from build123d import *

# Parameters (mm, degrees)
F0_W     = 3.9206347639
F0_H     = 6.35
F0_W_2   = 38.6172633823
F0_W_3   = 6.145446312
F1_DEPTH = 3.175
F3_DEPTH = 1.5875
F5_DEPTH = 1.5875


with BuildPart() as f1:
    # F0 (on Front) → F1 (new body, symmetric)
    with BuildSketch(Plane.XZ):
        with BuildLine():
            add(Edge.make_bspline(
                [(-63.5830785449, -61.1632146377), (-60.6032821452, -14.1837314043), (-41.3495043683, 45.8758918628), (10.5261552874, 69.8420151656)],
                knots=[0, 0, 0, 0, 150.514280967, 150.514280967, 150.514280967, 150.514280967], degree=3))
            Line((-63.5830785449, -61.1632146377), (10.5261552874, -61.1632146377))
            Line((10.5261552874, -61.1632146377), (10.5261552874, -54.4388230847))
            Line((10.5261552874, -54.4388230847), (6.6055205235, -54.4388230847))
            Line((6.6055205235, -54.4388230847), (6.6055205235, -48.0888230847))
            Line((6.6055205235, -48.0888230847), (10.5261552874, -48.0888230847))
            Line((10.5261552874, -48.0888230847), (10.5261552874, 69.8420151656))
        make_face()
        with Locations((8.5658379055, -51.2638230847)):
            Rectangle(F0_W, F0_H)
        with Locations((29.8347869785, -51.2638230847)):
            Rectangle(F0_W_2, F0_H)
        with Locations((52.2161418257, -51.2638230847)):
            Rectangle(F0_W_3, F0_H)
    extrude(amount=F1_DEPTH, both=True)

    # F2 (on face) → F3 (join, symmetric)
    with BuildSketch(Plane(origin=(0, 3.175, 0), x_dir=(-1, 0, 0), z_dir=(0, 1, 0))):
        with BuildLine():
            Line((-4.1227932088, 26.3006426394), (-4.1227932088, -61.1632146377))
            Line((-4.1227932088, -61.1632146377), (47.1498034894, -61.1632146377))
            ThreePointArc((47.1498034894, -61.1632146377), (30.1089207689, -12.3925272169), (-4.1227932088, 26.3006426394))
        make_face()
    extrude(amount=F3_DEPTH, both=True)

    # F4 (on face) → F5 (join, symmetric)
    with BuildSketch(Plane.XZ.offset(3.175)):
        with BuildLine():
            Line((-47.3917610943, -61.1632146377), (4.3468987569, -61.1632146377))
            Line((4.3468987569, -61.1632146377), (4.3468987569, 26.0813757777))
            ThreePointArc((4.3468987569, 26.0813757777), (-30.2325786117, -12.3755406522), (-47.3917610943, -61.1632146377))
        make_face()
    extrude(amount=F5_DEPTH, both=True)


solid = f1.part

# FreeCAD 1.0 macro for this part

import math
import FreeCAD as App
import Part
import Sketcher

V = App.Vector
Q = App.Units.Quantity

doc = App.newDocument("Part")
body = doc.addObject("PartDesign::Body", "Body")

# Sketch on XZ plane
sketch1 = body.newObject("Sketcher::SketchObject", "Sketch")
sketch1.AttachmentSupport = (doc.getObject("XZ_Plane"), [""])
sketch1.MapMode = "FlatFace"
sketch1.addGeometry(Part.BSplineCurve([V(-63.583079, -61.163215, 0), V(-60.603282, -14.183731, 0), V(-41.349504, 45.875892, 0), V(10.526155, 69.842015, 0)], [4, 4], [0, 150.514280967], False, 3, [1, 1, 1, 1], False), False)
sketch1.addGeometry(Part.LineSegment(V(-63.583079, -61.163215, 0), V(10.526155, -61.163215, 0)), False)
sketch1.addGeometry(Part.LineSegment(V(10.526155, -61.163215, 0), V(10.526155, -54.438823, 0)), False)
sketch1.addGeometry(Part.LineSegment(V(10.526155, -54.438823, 0), V(55.288865, -54.438823, 0)), False)
sketch1.addGeometry(Part.LineSegment(V(55.288865, -54.438823, 0), V(55.288865, -48.088823, 0)), False)
sketch1.addGeometry(Part.LineSegment(V(55.288865, -48.088823, 0), V(10.526155, -48.088823, 0)), False)
sketch1.addGeometry(Part.LineSegment(V(10.526155, -48.088823, 0), V(10.526155, 69.842015, 0)), False)
sketch1.addConstraint(Sketcher.Constraint("Block", 0))
sketch1.addConstraint(Sketcher.Constraint("Coincident", 0, 1, 1, 1))
sketch1.addConstraint(Sketcher.Constraint("Coincident", 1, 2, 2, 1))
sketch1.addConstraint(Sketcher.Constraint("Coincident", 2, 2, 3, 1))
sketch1.addConstraint(Sketcher.Constraint("Coincident", 3, 2, 4, 1))
sketch1.addConstraint(Sketcher.Constraint("Coincident", 4, 2, 5, 1))
sketch1.addConstraint(Sketcher.Constraint("Coincident", 5, 2, 6, 1))
sketch1.addConstraint(Sketcher.Constraint("Coincident", 6, 2, 0, 2))
sketch1.addConstraint(Sketcher.Constraint("Horizontal", 1))
sketch1.addConstraint(Sketcher.Constraint("Vertical", 2))
sketch1.addConstraint(Sketcher.Constraint("Horizontal", 3))
sketch1.addConstraint(Sketcher.Constraint("Vertical", 4))
sketch1.addConstraint(Sketcher.Constraint("Horizontal", 5))
sketch1.addConstraint(Sketcher.Constraint("Vertical", 6))
sketch1.addConstraint(Sketcher.Constraint("Vertical", 2, 2, 5, 2))
sketch1.addConstraint(Sketcher.Constraint("DistanceY", 4, 1, 4, 2, Q("0.25 in")))
sketch1.addConstraint(Sketcher.Constraint("DistanceX", 3, 1, 3, 2, 44.76271))
sketch1.addConstraint(Sketcher.Constraint("DistanceY", 2, 1, 2, 2, 6.724392))
pad1 = body.newObject("PartDesign::Pad", "Pad")
pad1.Profile = sketch1
pad1.Length = Q("0.25 in")
pad1.Midplane = True

# Sketch on XZ plane
sketch2 = body.newObject("Sketcher::SketchObject", "Sketch001")
sketch2.AttachmentSupport = (doc.getObject("XZ_Plane"), [""])
sketch2.MapMode = "FlatFace"
sketch2.AttachmentOffset = App.Placement(V(0, 0, -0.125 * 25.4), App.Rotation())
sketch2.addGeometry(Part.LineSegment(V(4, 26, 0), V(4, -61, 0)), False)
sketch2.addGeometry(Part.LineSegment(V(4, -61, 0), V(-47, -61, 0)), False)
sketch2.addGeometry(Part.ArcOfCircle(Part.Circle(V(85, -80, 0), V(0, 0, 1), 134), math.radians(127), math.radians(172)), False)
sketch2.addConstraint(Sketcher.Constraint("Coincident", 0, 2, 1, 1))
sketch2.addConstraint(Sketcher.Constraint("Coincident", 1, 2, 2, 2))
sketch2.addConstraint(Sketcher.Constraint("Coincident", 2, 1, 0, 1))
sketch2.addConstraint(Sketcher.Constraint("Vertical", 0))
sketch2.addConstraint(Sketcher.Constraint("Horizontal", 1))
sketch2.addConstraint(Sketcher.Constraint("Radius", 2, 133.938177))
sketch2.addConstraint(Sketcher.Constraint("DistanceX", 1, 2, 1, 1, 51.272597))
sketch2.addConstraint(Sketcher.Constraint("DistanceY", 0, 2, 0, 1, 87.463857))
sketch2.addConstraint(Sketcher.Constraint("DistanceX", -1, 1, 2, 3, 85.43888))
sketch2.addConstraint(Sketcher.Constraint("DistanceY", 2, 3, -1, 1, 80.128344))
pad2 = body.newObject("PartDesign::Pad", "Pad001")
pad2.Profile = sketch2
pad2.Length = Q("0.125 in")
pad2.Midplane = True

# Sketch on XZ plane
sketch3 = body.newObject("Sketcher::SketchObject", "Sketch002")
sketch3.AttachmentSupport = (doc.getObject("XZ_Plane"), [""])
sketch3.MapMode = "FlatFace"
sketch3.AttachmentOffset = App.Placement(V(0, 0, 0.125 * 25.4), App.Rotation())
sketch3.addGeometry(Part.LineSegment(V(-47, -61, 0), V(4, -61, 0)), False)
sketch3.addGeometry(Part.LineSegment(V(4, -61, 0), V(4, 26, 0)), False)
sketch3.addGeometry(Part.ArcOfCircle(Part.Circle(V(83, -80, 0), V(0, 0, 1), 132), math.radians(127), math.radians(172)), False)
sketch3.addConstraint(Sketcher.Constraint("Coincident", 0, 2, 1, 1))
sketch3.addConstraint(Sketcher.Constraint("Coincident", 1, 2, 2, 1))
sketch3.addConstraint(Sketcher.Constraint("Coincident", 2, 2, 0, 1))
sketch3.addConstraint(Sketcher.Constraint("Horizontal", 0))
sketch3.addConstraint(Sketcher.Constraint("Vertical", 1))
sketch3.addConstraint(Sketcher.Constraint("Radius", 2, 132.061973))
sketch3.addConstraint(Sketcher.Constraint("DistanceX", 0, 1, 0, 2, 51.73866))
sketch3.addConstraint(Sketcher.Constraint("DistanceY", 1, 1, 1, 2, 87.24459))
sketch3.addConstraint(Sketcher.Constraint("DistanceX", -1, 1, 0, 2, 4.346899))
sketch3.addConstraint(Sketcher.Constraint("DistanceY", 2, 3, -1, 1, 79.737819))
pad3 = body.newObject("PartDesign::Pad", "Pad002")
pad3.Profile = sketch3
pad3.Length = Q("0.125 in")
pad3.Midplane = True

doc.recompute()
